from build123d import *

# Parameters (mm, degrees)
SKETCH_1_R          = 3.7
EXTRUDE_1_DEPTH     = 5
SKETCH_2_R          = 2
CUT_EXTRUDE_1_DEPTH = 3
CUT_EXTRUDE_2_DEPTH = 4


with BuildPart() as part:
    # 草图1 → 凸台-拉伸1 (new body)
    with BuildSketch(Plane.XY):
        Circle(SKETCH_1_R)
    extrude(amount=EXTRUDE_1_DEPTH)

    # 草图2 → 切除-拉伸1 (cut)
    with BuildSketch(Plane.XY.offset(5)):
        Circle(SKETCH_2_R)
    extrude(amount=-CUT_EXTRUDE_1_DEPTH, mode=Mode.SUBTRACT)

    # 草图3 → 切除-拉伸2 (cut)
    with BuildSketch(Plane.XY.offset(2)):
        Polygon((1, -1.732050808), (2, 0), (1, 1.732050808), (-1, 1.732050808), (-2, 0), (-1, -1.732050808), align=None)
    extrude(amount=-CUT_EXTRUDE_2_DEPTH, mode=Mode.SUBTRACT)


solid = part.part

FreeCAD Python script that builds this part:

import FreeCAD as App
import Part
import Sketcher

V = App.Vector
Q = App.Units.Quantity

doc = App.newDocument("Part")
params = doc.addObject("Spreadsheet::Sheet", "Params")
for row, (alias, value) in enumerate([
    ("sketch1_diameter", "7.4 mm"),
    ("pad1_length", "5 mm"),
    ("sketch2_diameter", "4 mm"),
    ("pocket1_length", "3 mm"),
    ("sketch3_width", "2 mm"),
    ("sketch3_length", "2 mm"),
    ("pocket2_length", "4 mm"),
], start=1):
    params.set(f"A{row}", alias)
    params.set(f"B{row}", "=" + value)
    params.setAlias(f"B{row}", alias)

body = doc.addObject("PartDesign::Body", "Body")

# Sketch on XY plane
sketch1 = doc.addObject("Sketcher::SketchObject", "Sketch")
body.addObject(sketch1)
sketch1.AttachmentSupport = (doc.XY_Plane, [""])
sketch1.MapMode = "FlatFace"
sketch1.addGeometry(Part.Circle(V(0, 0, 0), V(0, 0, 1), 3.7), False)
sketch1.addConstraint([
    Sketcher.Constraint("Coincident", 0, 3, -1, 1),
    Sketcher.Constraint("Diameter", 0, Q("7.4 mm")),
])
sketch1.setExpression("Constraints[1]", "Params.sketch1_diameter")
pad1 = doc.addObject("PartDesign::Pad", "Pad")
body.addObject(pad1)
pad1.Profile = sketch1
pad1.setExpression("Length", "Params.pad1_length")

# Sketch on XY plane
sketch2 = doc.addObject("Sketcher::SketchObject", "Sketch001")
body.addObject(sketch2)
sketch2.AttachmentSupport = (doc.XY_Plane, [""])
sketch2.MapMode = "FlatFace"
sketch2.AttachmentOffset = App.Placement(V(0, 0, 5), App.Rotation())
sketch2.addGeometry(Part.Circle(V(0, 0, 0), V(0, 0, 1), 2), False)
sketch2.addConstraint([
    Sketcher.Constraint("Coincident", 0, 3, -1, 1),
    Sketcher.Constraint("Diameter", 0, Q("4 mm")),
])
sketch2.setExpression("Constraints[1]", "Params.sketch2_diameter")
pocket1 = doc.addObject("PartDesign::Pocket", "Pocket")
body.addObject(pocket1)
pocket1.Profile = sketch2
pocket1.setExpression("Length", "Params.pocket1_length")

# Sketch on XY plane
sketch3 = doc.addObject("Sketcher::SketchObject", "Sketch002")
body.addObject(sketch3)
sketch3.AttachmentSupport = (doc.XY_Plane, [""])
sketch3.MapMode = "FlatFace"
sketch3.AttachmentOffset = App.Placement(V(0, 0, 2), App.Rotation())
sketch3.addGeometry([
    Part.LineSegment(V(1, -1.7, 0), V(2, 0, 0)),  # 0
    Part.LineSegment(V(2, 0, 0), V(1, 1.7, 0)),  # 1
    Part.LineSegment(V(1, 1.7, 0), V(-1, 1.7, 0)),  # 2
    Part.LineSegment(V(-1, 1.7, 0), V(-2, 0, 0)),  # 3
    Part.LineSegment(V(-2, 0, 0), V(-1, -1.7, 0)),  # 4
    Part.LineSegment(V(-1, -1.7, 0), V(1, -1.7, 0)),  # 5
], False)
sketch3.addConstraint([
    Sketcher.Constraint("Coincident", 0, 2, 1, 1),
    Sketcher.Constraint("Coincident", 1, 2, 2, 1),
    Sketcher.Constraint("Coincident", 2, 2, 3, 1),
    Sketcher.Constraint("Coincident", 3, 2, 4, 1),
    Sketcher.Constraint("Coincident", 4, 2, 5, 1),
    Sketcher.Constraint("Coincident", 5, 2, 0, 1),
    Sketcher.Constraint("Horizontal", 2),
    Sketcher.Constraint("Horizontal", 5),
    Sketcher.Constraint("Symmetric", 0, 2, 3, 2, -1, 1),
    Sketcher.Constraint("Symmetric", 1, 2, 4, 2, -1, 1),
    Sketcher.Constraint("PointOnObject", 0, 2, -1),
    Sketcher.Constraint("Parallel", 0, 3),
    Sketcher.Constraint("Vertical", 2, 2, 4, 2),
    Sketcher.Constraint("DistanceX", 2, 2, 2, 1, Q("2 mm")),
    Sketcher.Constraint("Angle", 0, Q("60 deg")),
    Sketcher.Constraint("Distance", 0, Q("2 mm")),
])
sketch3.setExpression("Constraints[13]", "Params.sketch3_width")
sketch3.setExpression("Constraints[15]", "Params.sketch3_length")
pocket2 = doc.addObject("PartDesign::Pocket", "Pocket001")
body.addObject(pocket2)
pocket2.Profile = sketch3
pocket2.setExpression("Length", "Params.pocket2_length")

doc.recompute()
